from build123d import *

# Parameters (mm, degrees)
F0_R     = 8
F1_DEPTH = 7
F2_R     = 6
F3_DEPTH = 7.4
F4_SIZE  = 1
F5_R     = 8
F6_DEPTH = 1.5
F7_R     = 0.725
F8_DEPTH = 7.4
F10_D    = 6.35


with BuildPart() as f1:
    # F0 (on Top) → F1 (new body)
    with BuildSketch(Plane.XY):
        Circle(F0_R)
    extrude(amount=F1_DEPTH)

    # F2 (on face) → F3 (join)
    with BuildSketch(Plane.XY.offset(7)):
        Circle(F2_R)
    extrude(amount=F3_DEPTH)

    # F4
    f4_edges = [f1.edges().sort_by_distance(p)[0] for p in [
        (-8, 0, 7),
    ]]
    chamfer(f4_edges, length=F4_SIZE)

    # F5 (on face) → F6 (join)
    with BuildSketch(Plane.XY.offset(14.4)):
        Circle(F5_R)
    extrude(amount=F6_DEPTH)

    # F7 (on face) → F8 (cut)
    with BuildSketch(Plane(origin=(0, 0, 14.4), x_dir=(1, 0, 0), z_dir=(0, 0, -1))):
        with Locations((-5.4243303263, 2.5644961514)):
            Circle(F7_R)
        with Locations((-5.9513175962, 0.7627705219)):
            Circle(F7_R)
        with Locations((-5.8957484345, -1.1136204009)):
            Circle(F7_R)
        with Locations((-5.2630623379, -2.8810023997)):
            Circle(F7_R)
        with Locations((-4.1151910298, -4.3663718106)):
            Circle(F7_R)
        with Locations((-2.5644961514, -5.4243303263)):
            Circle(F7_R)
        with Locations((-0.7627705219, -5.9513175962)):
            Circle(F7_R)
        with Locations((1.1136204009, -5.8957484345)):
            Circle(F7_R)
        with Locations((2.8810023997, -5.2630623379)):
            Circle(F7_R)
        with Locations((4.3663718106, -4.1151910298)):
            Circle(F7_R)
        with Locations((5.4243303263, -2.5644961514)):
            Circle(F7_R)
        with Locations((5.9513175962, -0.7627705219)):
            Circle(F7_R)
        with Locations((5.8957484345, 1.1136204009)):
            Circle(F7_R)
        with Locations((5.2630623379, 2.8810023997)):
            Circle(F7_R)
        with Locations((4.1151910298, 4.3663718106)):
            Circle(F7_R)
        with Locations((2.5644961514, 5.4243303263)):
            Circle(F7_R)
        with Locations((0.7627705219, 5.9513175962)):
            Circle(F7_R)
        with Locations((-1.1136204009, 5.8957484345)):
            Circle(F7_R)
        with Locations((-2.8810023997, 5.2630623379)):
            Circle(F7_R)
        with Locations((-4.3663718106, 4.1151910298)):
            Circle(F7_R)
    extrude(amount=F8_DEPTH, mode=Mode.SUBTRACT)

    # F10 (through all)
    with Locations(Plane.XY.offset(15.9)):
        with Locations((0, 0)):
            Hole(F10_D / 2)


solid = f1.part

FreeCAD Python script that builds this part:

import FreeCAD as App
import Part
import Sketcher

V = App.Vector
Q = App.Units.Quantity


def edges_at(feature, points):
    """Names of the edges that pass closest to the given points."""
    edges = feature.Shape.Edges
    near = lambda p: min(range(len(edges)), key=lambda i: edges[i].distToShape(Part.Vertex(*p))[0])
    return sorted({f"Edge{near(p) + 1}" for p in points})

doc = App.newDocument("Part")
params = doc.addObject("Spreadsheet::Sheet", "Params")
for row, (alias, value) in enumerate([
    ("sketch1_diameter", "16 mm"),
    ("pad1_length", "7 mm"),
    ("sketch2_diameter", "12 mm"),
    ("pad2_length", "7.4 mm"),
    ("chamfer_size", "1 mm"),
    ("sketch3_diameter", "16 mm"),
    ("pad3_length", "1.5 mm"),
    ("sketch4_diameter", "1.45 mm"),
    ("pocket1_length", "7.4 mm"),
    ("sketch5_diameter", "6.35 mm"),
    ("hole_diameter", "6.35 mm"),
], start=1):
    params.set(f"A{row}", alias)
    params.set(f"B{row}", "=" + value)
    params.setAlias(f"B{row}", alias)

body = doc.addObject("PartDesign::Body", "Body")

# Sketch on XY plane
sketch1 = doc.addObject("Sketcher::SketchObject", "Sketch")
body.addObject(sketch1)
sketch1.AttachmentSupport = (doc.XY_Plane, [""])
sketch1.MapMode = "FlatFace"
sketch1.addGeometry(Part.Circle(V(0, 0, 0), V(0, 0, 1), 8), False)
sketch1.addConstraint(Sketcher.Constraint("Coincident", 0, 3, -1, 1))
sketch1.addConstraint(Sketcher.Constraint("Diameter", 0, Q("16 mm")))
sketch1.setExpression("Constraints[1]", "Params.sketch1_diameter")
pad1 = doc.addObject("PartDesign::Pad", "Pad")
body.addObject(pad1)
pad1.Profile = sketch1
pad1.setExpression("Length", "Params.pad1_length")

# Sketch on XY plane
sketch2 = doc.addObject("Sketcher::SketchObject", "Sketch001")
body.addObject(sketch2)
sketch2.AttachmentSupport = (doc.XY_Plane, [""])
sketch2.MapMode = "FlatFace"
sketch2.AttachmentOffset = App.Placement(V(0, 0, 7), App.Rotation())
sketch2.addGeometry(Part.Circle(V(0, 0, 0), V(0, 0, 1), 6), False)
sketch2.addConstraint(Sketcher.Constraint("Coincident", 0, 3, -1, 1))
sketch2.addConstraint(Sketcher.Constraint("Diameter", 0, Q("12 mm")))
sketch2.setExpression("Constraints[1]", "Params.sketch2_diameter")
pad2 = doc.addObject("PartDesign::Pad", "Pad001")
body.addObject(pad2)
pad2.Profile = sketch2
pad2.setExpression("Length", "Params.pad2_length")
doc.recompute()

chamfer = doc.addObject("PartDesign::Chamfer", "Chamfer")
body.addObject(chamfer)
chamfer.Base = (pad2, edges_at(pad2, [(-8, 0, 7)]))
chamfer.setExpression("Size", "Params.chamfer_size")

# Sketch on XY plane
sketch3 = doc.addObject("Sketcher::SketchObject", "Sketch002")
body.addObject(sketch3)
sketch3.AttachmentSupport = (doc.XY_Plane, [""])
sketch3.MapMode = "FlatFace"
sketch3.AttachmentOffset = App.Placement(V(0, 0, 14.4), App.Rotation())
sketch3.addGeometry(Part.Circle(V(0, 0, 0), V(0, 0, 1), 8), False)
sketch3.addConstraint(Sketcher.Constraint("Coincident", 0, 3, -1, 1))
sketch3.addConstraint(Sketcher.Constraint("Diameter", 0, Q("16 mm")))
sketch3.setExpression("Constraints[1]", "Params.sketch3_diameter")
pad3 = doc.addObject("PartDesign::Pad", "Pad002")
body.addObject(pad3)
pad3.Profile = sketch3
pad3.setExpression("Length", "Params.pad3_length")

# Sketch on XY plane
sketch4 = doc.addObject("Sketcher::SketchObject", "Sketch003")
body.addObject(sketch4)
sketch4.AttachmentSupport = (doc.XY_Plane, [""])
sketch4.MapMode = "FlatFace"
sketch4.AttachmentOffset = App.Placement(V(0, 0, 14.4), App.Rotation())
sketch4.addGeometry(Part.Circle(V(-5.4, -2.6, 0), V(0, 0, 1), 0.7), False)
sketch4.addGeometry(Part.Circle(V(-6, -0.8, 0), V(0, 0, 1), 0.7), False)
sketch4.addGeometry(Part.Circle(V(-5.9, 1.1, 0), V(0, 0, 1), 0.7), False)
sketch4.addGeometry(Part.Circle(V(-5.3, 2.9, 0), V(0, 0, 1), 0.7), False)
sketch4.addGeometry(Part.Circle(V(-4.1, 4.4, 0), V(0, 0, 1), 0.7), False)
sketch4.addGeometry(Part.Circle(V(-2.6, 5.4, 0), V(0, 0, 1), 0.7), False)
sketch4.addGeometry(Part.Circle(V(-0.8, 6, 0), V(0, 0, 1), 0.7), False)
sketch4.addGeometry(Part.Circle(V(1.1, 5.9, 0), V(0, 0, 1), 0.7), False)
sketch4.addGeometry(Part.Circle(V(2.9, 5.3, 0), V(0, 0, 1), 0.7), False)
sketch4.addGeometry(Part.Circle(V(4.4, 4.1, 0), V(0, 0, 1), 0.7), False)
sketch4.addGeometry(Part.Circle(V(5.4, 2.6, 0), V(0, 0, 1), 0.7), False)
sketch4.addGeometry(Part.Circle(V(6, 0.8, 0), V(0, 0, 1), 0.7), False)
sketch4.addGeometry(Part.Circle(V(5.9, -1.1, 0), V(0, 0, 1), 0.7), False)
sketch4.addGeometry(Part.Circle(V(5.3, -2.9, 0), V(0, 0, 1), 0.7), False)
sketch4.addGeometry(Part.Circle(V(4.1, -4.4, 0), V(0, 0, 1), 0.7), False)
sketch4.addGeometry(Part.Circle(V(2.6, -5.4, 0), V(0, 0, 1), 0.7), False)
sketch4.addGeometry(Part.Circle(V(0.8, -6, 0), V(0, 0, 1), 0.7), False)
sketch4.addGeometry(Part.Circle(V(-1.1, -5.9, 0), V(0, 0, 1), 0.7), False)
sketch4.addGeometry(Part.Circle(V(-2.9, -5.3, 0), V(0, 0, 1), 0.7), False)
sketch4.addGeometry(Part.Circle(V(-4.4, -4.1, 0), V(0, 0, 1), 0.7), False)
sketch4.addConstraint(Sketcher.Constraint("Equal", 0, 1))
sketch4.addConstraint(Sketcher.Constraint("Equal", 1, 2))
sketch4.addConstraint(Sketcher.Constraint("Equal", 2, 3))
sketch4.addConstraint(Sketcher.Constraint("Equal", 3, 4))
sketch4.addConstraint(Sketcher.Constraint("Equal", 4, 5))
sketch4.addConstraint(Sketcher.Constraint("Equal", 5, 6))
sketch4.addConstraint(Sketcher.Constraint("Equal", 6, 7))
sketch4.addConstraint(Sketcher.Constraint("Equal", 7, 8))
sketch4.addConstraint(Sketcher.Constraint("Equal", 8, 9))
sketch4.addConstraint(Sketcher.Constraint("Equal", 9, 10))
sketch4.addConstraint(Sketcher.Constraint("Equal", 10, 11))
sketch4.addConstraint(Sketcher.Constraint("Equal", 11, 12))
sketch4.addConstraint(Sketcher.Constraint("Equal", 12, 13))
sketch4.addConstraint(Sketcher.Constraint("Equal", 13, 14))
sketch4.addConstraint(Sketcher.Constraint("Equal", 14, 15))
sketch4.addConstraint(Sketcher.Constraint("Equal", 15, 16))
sketch4.addConstraint(Sketcher.Constraint("Equal", 16, 17))
sketch4.addConstraint(Sketcher.Constraint("Equal", 17, 18))
sketch4.addConstraint(Sketcher.Constraint("Equal", 18, 19))
sketch4.addConstraint(Sketcher.Constraint("Symmetric", 0, 3, 10, 3, -1, 1))
sketch4.addConstraint(Sketcher.Constraint("Symmetric", 1, 3, 11, 3, -1, 1))
sketch4.addConstraint(Sketcher.Constraint("Symmetric", 2, 3, 12, 3, -1, 1))
sketch4.addConstraint(Sketcher.Constraint("Symmetric", 3, 3, 13, 3, -1, 1))
sketch4.addConstraint(Sketcher.Constraint("Symmetric", 4, 3, 14, 3, -1, 1))
sketch4.addConstraint(Sketcher.Constraint("Symmetric", 5, 3, 15, 3, -1, 1))
sketch4.addConstraint(Sketcher.Constraint("Symmetric", 6, 3, 16, 3, -1, 1))
sketch4.addConstraint(Sketcher.Constraint("Symmetric", 7, 3, 17, 3, -1, 1))
sketch4.addConstraint(Sketcher.Constraint("Symmetric", 8, 3, 18, 3, -1, 1))
sketch4.addConstraint(Sketcher.Constraint("Symmetric", 9, 3, 19, 3, -1, 1))
sketch4.addConstraint(Sketcher.Constraint("Diameter", 0, Q("1.45 mm")))
sketch4.addConstraint(Sketcher.Constraint("DistanceY", 0, 3, 3, 3, Q("5.445499 mm")))
sketch4.addConstraint(Sketcher.Constraint("DistanceY", 1, 3, 5, 3, Q("6.187101 mm")))
sketch4.addConstraint(Sketcher.Constraint("DistanceX", 5, 3, 8, 3, Q("5.445499 mm")))
sketch4.addConstraint(Sketcher.Constraint("DistanceX", 6, 3, 10, 3, Q("6.187101 mm")))
sketch4.addConstraint(Sketcher.Constraint("DistanceX", 0, 3, -1, 1, Q("5.42433 mm")))
sketch4.addConstraint(Sketcher.Constraint("DistanceY", 1, 3, -1, 1, Q("0.762771 mm")))
sketch4.addConstraint(Sketcher.Constraint("DistanceX", 2, 3, -1, 1, Q("5.895748 mm")))
sketch4.addConstraint(Sketcher.Constraint("DistanceY", -1, 1, 2, 3, Q("1.11362 mm")))
sketch4.addConstraint(Sketcher.Constraint("DistanceX", 4, 3, -1, 1, Q("4.115191 mm")))
sketch4.addConstraint(Sketcher.Constraint("DistanceY", -1, 1, 4, 3, Q("4.366372 mm")))
sketch4.addConstraint(Sketcher.Constraint("DistanceX", -1, 1, 7, 3, Q("1.11362 mm")))
sketch4.addConstraint(Sketcher.Constraint("DistanceY", -1, 1, 7, 3, Q("5.895748 mm")))
sketch4.addConstraint(Sketcher.Constraint("DistanceX", -1, 1, 9, 3, Q("4.366372 mm")))
sketch4.addConstraint(Sketcher.Constraint("DistanceY", -1, 1, 9, 3, Q("4.115191 mm")))
sketch4.addConstraint(Sketcher.Constraint("DistanceX", 1, 3, 2, 3, Q("0.055569 mm")))
sketch4.addConstraint(Sketcher.Constraint("DistanceY", 2, 3, 3, 3, Q("1.767382 mm")))
sketch4.addConstraint(Sketcher.Constraint("DistanceX", 3, 3, 4, 3, Q("1.147871 mm")))
sketch4.addConstraint(Sketcher.Constraint("DistanceX", 1, 3, 5, 3, Q("3.386821 mm")))
sketch4.addConstraint(Sketcher.Constraint("DistanceY", 1, 3, 6, 3, Q("6.714088 mm")))
sketch4.addConstraint(Sketcher.Constraint("DistanceY", 4, 3, 8, 3, Q("0.896691 mm")))
sketch4.setExpression("Constraints[29]", "Params.sketch4_diameter")
pocket1 = doc.addObject("PartDesign::Pocket", "Pocket")
body.addObject(pocket1)
pocket1.Profile = sketch4
pocket1.setExpression("Length", "Params.pocket1_length")

# Sketch on XY plane
sketch5 = doc.addObject("Sketcher::SketchObject", "Sketch004")
body.addObject(sketch5)
sketch5.AttachmentSupport = (doc.XY_Plane, [""])
sketch5.MapMode = "FlatFace"
sketch5.AttachmentOffset = App.Placement(V(0, 0, 15.9), App.Rotation())
sketch5.addGeometry(Part.Circle(V(0, 0, 0), V(0, 0, 1), 3.2), False)
sketch5.addConstraint(Sketcher.Constraint("Coincident", 0, 3, -1, 1))
sketch5.addConstraint(Sketcher.Constraint("Diameter", 0, Q("6.35 mm")))
sketch5.setExpression("Constraints[1]", "Params.sketch5_diameter")
doc.recompute()
hole = doc.addObject("PartDesign::Hole", "Hole")
body.addObject(hole)
hole.Profile = sketch5
hole.ThreadType = "None"
hole.setExpression("Diameter", "Params.hole_diameter")
hole.DepthType = "ThroughAll"

doc.recompute()
